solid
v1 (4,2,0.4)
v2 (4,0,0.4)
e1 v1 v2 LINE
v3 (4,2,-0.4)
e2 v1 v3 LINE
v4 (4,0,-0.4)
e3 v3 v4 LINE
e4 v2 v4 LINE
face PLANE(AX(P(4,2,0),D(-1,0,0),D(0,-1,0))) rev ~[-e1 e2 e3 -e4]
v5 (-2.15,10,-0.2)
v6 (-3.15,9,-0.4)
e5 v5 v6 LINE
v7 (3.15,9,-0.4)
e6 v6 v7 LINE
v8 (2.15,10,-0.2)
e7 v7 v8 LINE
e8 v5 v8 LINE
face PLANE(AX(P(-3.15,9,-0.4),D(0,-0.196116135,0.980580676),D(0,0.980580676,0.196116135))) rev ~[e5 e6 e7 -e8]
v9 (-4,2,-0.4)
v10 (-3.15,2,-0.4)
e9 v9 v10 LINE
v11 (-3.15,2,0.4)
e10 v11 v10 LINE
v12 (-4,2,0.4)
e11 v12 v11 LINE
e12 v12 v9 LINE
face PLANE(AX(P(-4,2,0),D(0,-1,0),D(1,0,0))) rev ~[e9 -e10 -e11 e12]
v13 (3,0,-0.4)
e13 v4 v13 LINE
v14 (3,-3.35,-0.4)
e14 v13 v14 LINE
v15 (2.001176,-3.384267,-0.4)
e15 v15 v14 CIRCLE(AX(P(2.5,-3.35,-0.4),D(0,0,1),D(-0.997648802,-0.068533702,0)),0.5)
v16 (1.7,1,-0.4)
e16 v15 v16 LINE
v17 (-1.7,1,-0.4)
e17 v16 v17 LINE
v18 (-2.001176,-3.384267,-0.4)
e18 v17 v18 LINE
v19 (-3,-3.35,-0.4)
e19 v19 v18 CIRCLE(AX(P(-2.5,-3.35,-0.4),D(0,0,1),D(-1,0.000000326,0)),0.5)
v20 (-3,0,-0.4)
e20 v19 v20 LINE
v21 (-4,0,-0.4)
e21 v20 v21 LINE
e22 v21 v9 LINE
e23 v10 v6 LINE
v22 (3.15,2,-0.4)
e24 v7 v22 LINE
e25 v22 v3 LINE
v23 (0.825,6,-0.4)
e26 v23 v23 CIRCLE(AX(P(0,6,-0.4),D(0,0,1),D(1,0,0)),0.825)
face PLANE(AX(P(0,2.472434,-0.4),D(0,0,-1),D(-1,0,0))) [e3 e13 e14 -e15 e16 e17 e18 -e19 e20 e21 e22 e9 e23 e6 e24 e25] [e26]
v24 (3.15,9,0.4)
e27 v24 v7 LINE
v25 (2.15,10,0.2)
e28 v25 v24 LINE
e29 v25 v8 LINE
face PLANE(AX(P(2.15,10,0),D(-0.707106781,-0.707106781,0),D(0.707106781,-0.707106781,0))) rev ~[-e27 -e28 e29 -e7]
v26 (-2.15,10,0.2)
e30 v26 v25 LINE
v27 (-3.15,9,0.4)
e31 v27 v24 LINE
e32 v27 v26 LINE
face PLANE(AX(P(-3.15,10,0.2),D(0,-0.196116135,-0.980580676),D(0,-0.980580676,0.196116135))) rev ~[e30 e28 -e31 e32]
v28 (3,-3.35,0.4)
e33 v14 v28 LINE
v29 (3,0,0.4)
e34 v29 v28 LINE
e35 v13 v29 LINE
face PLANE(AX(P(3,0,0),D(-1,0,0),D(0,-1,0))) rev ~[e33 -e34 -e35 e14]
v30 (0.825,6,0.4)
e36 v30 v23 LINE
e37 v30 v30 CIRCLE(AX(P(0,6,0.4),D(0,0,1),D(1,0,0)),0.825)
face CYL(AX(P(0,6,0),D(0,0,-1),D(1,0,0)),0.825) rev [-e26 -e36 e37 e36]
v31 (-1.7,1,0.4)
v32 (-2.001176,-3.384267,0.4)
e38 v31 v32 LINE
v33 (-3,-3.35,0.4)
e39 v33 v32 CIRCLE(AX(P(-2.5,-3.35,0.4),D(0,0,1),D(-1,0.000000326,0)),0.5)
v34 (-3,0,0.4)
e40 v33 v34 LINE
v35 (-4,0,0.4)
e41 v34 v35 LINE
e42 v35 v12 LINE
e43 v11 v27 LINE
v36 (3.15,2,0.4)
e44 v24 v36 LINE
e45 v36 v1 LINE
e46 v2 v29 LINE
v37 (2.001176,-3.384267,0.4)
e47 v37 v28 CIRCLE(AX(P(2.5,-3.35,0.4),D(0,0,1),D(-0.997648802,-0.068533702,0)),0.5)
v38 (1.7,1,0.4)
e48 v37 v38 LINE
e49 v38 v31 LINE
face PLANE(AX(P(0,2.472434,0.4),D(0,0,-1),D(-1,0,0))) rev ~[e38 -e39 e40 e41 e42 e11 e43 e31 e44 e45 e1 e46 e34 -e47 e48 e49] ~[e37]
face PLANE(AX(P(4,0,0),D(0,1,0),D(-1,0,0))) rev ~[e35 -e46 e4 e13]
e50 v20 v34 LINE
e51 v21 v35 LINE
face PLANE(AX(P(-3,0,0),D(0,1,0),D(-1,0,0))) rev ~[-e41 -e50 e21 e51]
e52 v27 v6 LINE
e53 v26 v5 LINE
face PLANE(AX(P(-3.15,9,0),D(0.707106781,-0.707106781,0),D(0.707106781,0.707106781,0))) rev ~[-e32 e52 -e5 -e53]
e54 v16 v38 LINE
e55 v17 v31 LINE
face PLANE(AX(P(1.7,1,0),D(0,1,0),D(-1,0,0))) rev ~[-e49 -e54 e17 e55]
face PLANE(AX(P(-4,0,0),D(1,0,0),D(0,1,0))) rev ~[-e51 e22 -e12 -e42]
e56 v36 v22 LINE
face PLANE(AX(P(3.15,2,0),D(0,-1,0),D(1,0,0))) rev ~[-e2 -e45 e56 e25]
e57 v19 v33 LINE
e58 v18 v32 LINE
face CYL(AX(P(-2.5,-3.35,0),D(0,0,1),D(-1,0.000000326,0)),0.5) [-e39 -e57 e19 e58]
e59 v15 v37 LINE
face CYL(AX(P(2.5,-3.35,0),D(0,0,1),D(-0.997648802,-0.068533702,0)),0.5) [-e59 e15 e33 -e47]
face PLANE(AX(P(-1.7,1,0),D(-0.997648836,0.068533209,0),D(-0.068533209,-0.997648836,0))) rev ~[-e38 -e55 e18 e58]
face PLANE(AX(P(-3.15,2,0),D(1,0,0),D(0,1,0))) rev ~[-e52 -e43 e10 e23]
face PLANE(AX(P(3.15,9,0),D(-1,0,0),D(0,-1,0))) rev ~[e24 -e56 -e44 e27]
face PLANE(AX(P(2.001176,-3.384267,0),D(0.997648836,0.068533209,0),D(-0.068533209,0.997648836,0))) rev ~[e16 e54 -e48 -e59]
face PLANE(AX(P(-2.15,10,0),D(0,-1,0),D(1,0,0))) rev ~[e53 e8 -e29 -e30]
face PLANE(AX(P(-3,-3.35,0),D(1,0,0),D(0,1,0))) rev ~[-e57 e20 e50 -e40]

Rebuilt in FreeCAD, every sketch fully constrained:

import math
import FreeCAD as App
import Part
import Sketcher
from FreeCAD import Vector


def add_polygon(sketch, points):
    """Adds a closed chain of lines whose ends are joined by coincident constraints."""
    first, n = sketch.GeometryCount, len(points)
    for a, b in zip(points, points[1:] + points[:1]):
        sketch.addGeometry(Part.LineSegment(App.Vector(*a, 0), App.Vector(*b, 0)), False)
    for i in range(n):
        sketch.addConstraint(Sketcher.Constraint("Coincident", first + i, 2, first + (i + 1) % n, 1))

doc = App.newDocument("Part")
body = doc.addObject("PartDesign::Body", "Body")

sketch1 = body.newObject("Sketcher::SketchObject", "Sketch")
sketch1.AttachmentSupport = (doc.getObject("XY_Plane"), [""])
sketch1.MapMode = "FlatFace"
sketch1.addGeometry(Part.LineSegment(Vector(-4, 2, 0), Vector(-4, 0, 0)), False)
sketch1.addGeometry(Part.LineSegment(Vector(-4, 0, 0), Vector(-3, 0, 0)), False)
sketch1.addGeometry(Part.LineSegment(Vector(-3, 0, 0), Vector(-3, -3.35, 0)), False)
sketch1.addGeometry(Part.ArcOfCircle(Part.Circle(Vector(-2.5, -3.35, 0), Vector(0, 0, 1), 0.5), math.radians(180), math.radians(356)), False)
sketch1.addGeometry(Part.LineSegment(Vector(-2, -3.38, 0), Vector(-1.7, 1, 0)), False)
sketch1.addGeometry(Part.LineSegment(Vector(-1.7, 1, 0), Vector(1.7, 1, 0)), False)
sketch1.addGeometry(Part.LineSegment(Vector(1.7, 1, 0), Vector(2, -3.38, 0)), False)
sketch1.addGeometry(Part.ArcOfCircle(Part.Circle(Vector(2.5, -3.35, 0), Vector(0, 0, 1), 0.5), math.radians(-176), math.radians(0)), False)
sketch1.addGeometry(Part.LineSegment(Vector(3, -3.35, 0), Vector(3, 0, 0)), False)
sketch1.addGeometry(Part.LineSegment(Vector(3, 0, 0), Vector(4, 0, 0)), False)
sketch1.addGeometry(Part.LineSegment(Vector(4, 0, 0), Vector(4, 2, 0)), False)
sketch1.addGeometry(Part.LineSegment(Vector(4, 2, 0), Vector(3.15, 2, 0)), False)
sketch1.addGeometry(Part.LineSegment(Vector(3.15, 2, 0), Vector(3.15, 9, 0)), False)
sketch1.addGeometry(Part.LineSegment(Vector(3.15, 9, 0), Vector(2.15, 10, 0)), False)
sketch1.addGeometry(Part.LineSegment(Vector(2.15, 10, 0), Vector(-2.15, 10, 0)), False)
sketch1.addGeometry(Part.LineSegment(Vector(-2.15, 10, 0), Vector(-3.15, 9, 0)), False)
sketch1.addGeometry(Part.LineSegment(Vector(-3.15, 9, 0), Vector(-3.15, 2, 0)), False)
sketch1.addGeometry(Part.LineSegment(Vector(-3.15, 2, 0), Vector(-4, 2, 0)), False)
sketch1.addGeometry(Part.Circle(Vector(0, 6, 0), Vector(0, 0, 1), 0.82), False)
sketch1.addConstraint(Sketcher.Constraint("Coincident", 0, 2, 1, 1))
sketch1.addConstraint(Sketcher.Constraint("Coincident", 1, 2, 2, 1))
sketch1.addConstraint(Sketcher.Constraint("Tangent", 2, 2, 3, 1))
sketch1.addConstraint(Sketcher.Constraint("Tangent", 3, 2, 4, 1))
sketch1.addConstraint(Sketcher.Constraint("Coincident", 4, 2, 5, 1))
sketch1.addConstraint(Sketcher.Constraint("Coincident", 5, 2, 6, 1))
sketch1.addConstraint(Sketcher.Constraint("Tangent", 6, 2, 7, 1))
sketch1.addConstraint(Sketcher.Constraint("Tangent", 7, 2, 8, 1))
sketch1.addConstraint(Sketcher.Constraint("Coincident", 8, 2, 9, 1))
sketch1.addConstraint(Sketcher.Constraint("Coincident", 9, 2, 10, 1))
sketch1.addConstraint(Sketcher.Constraint("Coincident", 10, 2, 11, 1))
sketch1.addConstraint(Sketcher.Constraint("Coincident", 11, 2, 12, 1))
sketch1.addConstraint(Sketcher.Constraint("Coincident", 12, 2, 13, 1))
sketch1.addConstraint(Sketcher.Constraint("Coincident", 13, 2, 14, 1))
sketch1.addConstraint(Sketcher.Constraint("Coincident", 14, 2, 15, 1))
sketch1.addConstraint(Sketcher.Constraint("Coincident", 15, 2, 16, 1))
sketch1.addConstraint(Sketcher.Constraint("Coincident", 16, 2, 17, 1))
sketch1.addConstraint(Sketcher.Constraint("Coincident", 17, 2, 0, 1))
sketch1.addConstraint(Sketcher.Constraint("Vertical", 0))
sketch1.addConstraint(Sketcher.Constraint("Horizontal", 1))
sketch1.addConstraint(Sketcher.Constraint("Vertical", 2))
sketch1.addConstraint(Sketcher.Constraint("Horizontal", 5))
sketch1.addConstraint(Sketcher.Constraint("Vertical", 8))
sketch1.addConstraint(Sketcher.Constraint("Horizontal", 9))
sketch1.addConstraint(Sketcher.Constraint("Vertical", 10))
sketch1.addConstraint(Sketcher.Constraint("Horizontal", 11))
sketch1.addConstraint(Sketcher.Constraint("Vertical", 12))
sketch1.addConstraint(Sketcher.Constraint("Horizontal", 14))
sketch1.addConstraint(Sketcher.Constraint("Vertical", 16))
sketch1.addConstraint(Sketcher.Constraint("Horizontal", 17))
sketch1.addConstraint(Sketcher.Constraint("Equal", 3, 7))
sketch1.addConstraint(Sketcher.Constraint("Symmetric", 1, 2, 8, 2, -1, 1))
sketch1.addConstraint(Sketcher.Constraint("Symmetric", 3, 2, 6, 2, -2))
sketch1.addConstraint(Sketcher.Constraint("Symmetric", 0, 2, 9, 2, -2))
sketch1.addConstraint(Sketcher.Constraint("Symmetric", 12, 2, 15, 2, -2))
sketch1.addConstraint(Sketcher.Constraint("PointOnObject", 18, 3, -2))
sketch1.addConstraint(Sketcher.Constraint("Perpendicular", 13, 15))
sketch1.addConstraint(Sketcher.Constraint("Horizontal", 11, 2, 16, 2))
sketch1.addConstraint(Sketcher.Constraint("Equal", 13, 15))
sketch1.addConstraint(Sketcher.Constraint("Radius", 3, 0.5))
sketch1.addConstraint(Sketcher.Constraint("Diameter", 18, 1.65))
sketch1.addConstraint(Sketcher.Constraint("DistanceX", 1, 1, 1, 2, 1.0))
sketch1.addConstraint(Sketcher.Constraint("DistanceY", 0, 2, 0, 1, 2.0))
sketch1.addConstraint(Sketcher.Constraint("DistanceY", 12, 1, 12, 2, 7.0))
sketch1.addConstraint(Sketcher.Constraint("DistanceX", 5, 1, 5, 2, 3.4))
sketch1.addConstraint(Sketcher.Constraint("DistanceX", 14, 2, 14, 1, 4.3))
sketch1.addConstraint(Sketcher.Constraint("DistanceY", -1, 1, 18, 3, 6.0))
sketch1.addConstraint(Sketcher.Constraint("DistanceX", 0, 2, -1, 1, 4.0))
sketch1.addConstraint(Sketcher.Constraint("DistanceY", -1, 1, 4, 2, 1.0))
sketch1.addConstraint(Sketcher.Constraint("DistanceY", -1, 1, 13, 2, 10.0))
sketch1.addConstraint(Sketcher.Constraint("DistanceY", 2, 2, 2, 1, 3.35))
pad1 = body.newObject("PartDesign::Pad", "Pad")
pad1.Profile = sketch1
pad1.Length = 0.8
pad1.Midplane = True

sketch2 = body.newObject("Sketcher::SketchObject", "Sketch001")
sketch2.AttachmentSupport = (doc.getObject("YZ_Plane"), [""])
sketch2.MapMode = "FlatFace"
sketch2.AttachmentOffset = App.Placement(Vector(0, 0, -3.15), App.Rotation())
add_polygon(sketch2, [(9, 0.4), (9, 1), (11, 1), (11, -1), (9, -1), (9, -0.4), (10, -0.2), (10, 0.2)])
sketch2.addConstraint(Sketcher.Constraint("Vertical", 0))
sketch2.addConstraint(Sketcher.Constraint("Horizontal", 1))
sketch2.addConstraint(Sketcher.Constraint("Vertical", 2))
sketch2.addConstraint(Sketcher.Constraint("Horizontal", 3))
sketch2.addConstraint(Sketcher.Constraint("Vertical", 4))
sketch2.addConstraint(Sketcher.Constraint("Vertical", 6))
sketch2.addConstraint(Sketcher.Constraint("Symmetric", 0, 2, 3, 2, -1))
sketch2.addConstraint(Sketcher.Constraint("Equal", 3, 2))
sketch2.addConstraint(Sketcher.Constraint("Equal", 0, 4))
sketch2.addConstraint(Sketcher.Constraint("Equal", 5, 7))
sketch2.addConstraint(Sketcher.Constraint("DistanceX", 1, 1, 1, 2, 2.0))
sketch2.addConstraint(Sketcher.Constraint("DistanceY", 0, 1, 0, 2, 0.6))
sketch2.addConstraint(Sketcher.Constraint("DistanceY", 6, 1, 6, 2, 0.4))
sketch2.addConstraint(Sketcher.Constraint("DistanceX", -1, 1, 0, 2, 9.0))
sketch2.addConstraint(Sketcher.Constraint("DistanceX", -1, 1, 5, 2, 10.0))
pocket1 = body.newObject("PartDesign::Pocket", "Pocket")
pocket1.Profile = sketch2
pocket1.Type = "ThroughAll"
pocket1.Reversed = True

doc.recompute()
